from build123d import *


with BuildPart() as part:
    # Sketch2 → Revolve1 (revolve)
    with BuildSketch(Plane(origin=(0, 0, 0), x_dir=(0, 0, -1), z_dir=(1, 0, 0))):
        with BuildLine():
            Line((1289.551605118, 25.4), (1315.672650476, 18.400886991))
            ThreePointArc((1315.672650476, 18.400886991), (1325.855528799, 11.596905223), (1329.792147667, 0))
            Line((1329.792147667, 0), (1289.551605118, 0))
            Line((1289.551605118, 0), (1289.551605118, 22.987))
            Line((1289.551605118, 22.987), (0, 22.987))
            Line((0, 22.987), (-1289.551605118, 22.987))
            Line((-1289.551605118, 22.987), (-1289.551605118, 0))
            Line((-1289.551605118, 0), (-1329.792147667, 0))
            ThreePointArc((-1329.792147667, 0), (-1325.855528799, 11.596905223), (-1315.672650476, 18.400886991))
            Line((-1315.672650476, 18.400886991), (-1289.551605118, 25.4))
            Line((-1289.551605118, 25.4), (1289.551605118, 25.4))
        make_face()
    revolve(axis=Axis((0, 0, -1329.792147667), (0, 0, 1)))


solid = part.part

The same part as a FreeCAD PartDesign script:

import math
import FreeCAD as App
import Part
import Sketcher

V = App.Vector
Q = App.Units.Quantity

doc = App.newDocument("Part")
body = doc.addObject("PartDesign::Body", "Body")

# Sketch on YZ plane
sketch1 = body.newObject("Sketcher::SketchObject", "Sketch")
sketch1.AttachmentSupport = (doc.getObject("YZ_Plane"), [""])
sketch1.MapMode = "FlatFace"
sketch1.addGeometry([
    Part.LineSegment(V(18.400887, -1315.67265, 0), V(25.4, -1289.551605, 0)),  # 0
    Part.LineSegment(V(25.4, -1289.551605, 0), V(25.4, 1289.551605, 0)),  # 1
    Part.LineSegment(V(25.4, 1289.551605, 0), V(18.400887, 1315.67265, 0)),  # 2
    Part.ArcOfCircle(Part.Circle(V(0, 1310.742148, 0), V(0, 0, 1), 19.05), math.radians(15), math.radians(90)),  # 3
    Part.LineSegment(V(0, 1329.792148, 0), V(0, 1289.551605, 0)),  # 4
    Part.LineSegment(V(0, 1289.551605, 0), V(22.987, 1289.551605, 0)),  # 5
    Part.LineSegment(V(22.987, 1289.551605, 0), V(22.987, -1289.551605, 0)),  # 6
    Part.LineSegment(V(22.987, -1289.551605, 0), V(0, -1289.551605, 0)),  # 7
    Part.LineSegment(V(0, -1289.551605, 0), V(0, -1329.792148, 0)),  # 8
    Part.ArcOfCircle(Part.Circle(V(0, -1310.742148, 0), V(0, 0, 1), 19.05), math.radians(-90), math.radians(-15)),  # 9
], False)
sketch1.addConstraint([
    Sketcher.Constraint("Coincident", 0, 2, 1, 1),
    Sketcher.Constraint("Coincident", 1, 2, 2, 1),
    Sketcher.Constraint("Tangent", 2, 2, 3, 1),
    Sketcher.Constraint("Coincident", 3, 2, 4, 1),
    Sketcher.Constraint("Coincident", 4, 2, 5, 1),
    Sketcher.Constraint("Coincident", 5, 2, 6, 1),
    Sketcher.Constraint("Coincident", 6, 2, 7, 1),
    Sketcher.Constraint("Coincident", 7, 2, 8, 1),
    Sketcher.Constraint("Coincident", 8, 2, 9, 1),
    Sketcher.Constraint("Tangent", 9, 2, 0, 1),
    Sketcher.Constraint("Vertical", 1),
    Sketcher.Constraint("Vertical", 4),
    Sketcher.Constraint("Horizontal", 5),
    Sketcher.Constraint("Vertical", 6),
    Sketcher.Constraint("Horizontal", 7),
    Sketcher.Constraint("Vertical", 8),
    Sketcher.Constraint("Equal", 3, 9),
    Sketcher.Constraint("Symmetric", 3, 3, 9, 3, -1, 1),
    Sketcher.Constraint("Symmetric", 4, 2, 7, 2, -1, 1),
    Sketcher.Constraint("Symmetric", 2, 2, 9, 2, -1),
    Sketcher.Constraint("PointOnObject", 3, 2, -2),
    Sketcher.Constraint("Horizontal", 1, 2, 4, 2),
    Sketcher.Constraint("Radius", 3, Q("0.75 in")),
    Sketcher.Constraint("DistanceX", -1, 1, 0, 2, Q("1 in")),
    Sketcher.Constraint("Angle", 0, Q("75 deg")),
    Sketcher.Constraint("DistanceX", 5, 1, 5, 2, Q("0.905 in")),
    Sketcher.Constraint("DistanceY", 1, 1, 1, 2, Q("2579.10321 mm")),
])
revolution = body.newObject("PartDesign::Revolution", "Revolution")
revolution.Profile = sketch1
revolution.ReferenceAxis = (sketch1, ["V_Axis"])
revolution.Angle = 360

doc.recompute()
